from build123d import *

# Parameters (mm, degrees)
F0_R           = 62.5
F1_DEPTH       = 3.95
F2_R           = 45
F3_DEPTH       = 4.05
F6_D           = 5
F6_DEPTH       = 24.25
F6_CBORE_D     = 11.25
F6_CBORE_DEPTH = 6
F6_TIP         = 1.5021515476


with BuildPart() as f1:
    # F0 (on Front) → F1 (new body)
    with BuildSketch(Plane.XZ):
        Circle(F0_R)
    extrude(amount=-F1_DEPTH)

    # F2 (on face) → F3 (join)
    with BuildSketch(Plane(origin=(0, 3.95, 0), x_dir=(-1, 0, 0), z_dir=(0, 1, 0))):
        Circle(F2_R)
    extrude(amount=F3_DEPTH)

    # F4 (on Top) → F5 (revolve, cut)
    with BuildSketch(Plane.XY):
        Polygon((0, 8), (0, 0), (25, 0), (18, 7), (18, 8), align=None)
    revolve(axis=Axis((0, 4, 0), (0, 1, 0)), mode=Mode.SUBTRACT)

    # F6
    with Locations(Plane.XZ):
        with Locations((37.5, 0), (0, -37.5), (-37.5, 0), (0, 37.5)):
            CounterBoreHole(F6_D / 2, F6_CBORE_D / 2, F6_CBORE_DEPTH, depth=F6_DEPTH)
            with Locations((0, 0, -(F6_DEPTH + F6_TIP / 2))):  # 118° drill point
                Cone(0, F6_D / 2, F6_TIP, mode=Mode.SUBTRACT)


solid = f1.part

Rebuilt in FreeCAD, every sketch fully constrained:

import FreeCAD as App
import Part
import Sketcher
from FreeCAD import Vector
Q = App.Units.Quantity

doc = App.newDocument("Part")
body = doc.addObject("PartDesign::Body", "Body")

sketch1 = body.newObject("Sketcher::SketchObject", "Sketch")
sketch1.AttachmentSupport = (doc.getObject("XZ_Plane"), [""])
sketch1.MapMode = "FlatFace"
sketch1.addGeometry(Part.Circle(Vector(0, 0, 0), Vector(0, 0, 1), 62.5), False)
sketch1.addConstraint([
    Sketcher.Constraint("Coincident", 0, 3, -1, 1),
    Sketcher.Constraint("Diameter", 0, Q("125 mm")),
])
pad1 = body.newObject("PartDesign::Pad", "Pad")
pad1.Profile = sketch1
pad1.Length = 3.95
pad1.Reversed = True

sketch2 = body.newObject("Sketcher::SketchObject", "Sketch001")
sketch2.AttachmentSupport = (doc.getObject("XZ_Plane"), [""])
sketch2.MapMode = "FlatFace"
sketch2.AttachmentOffset = App.Placement(Vector(0, 0, -3.95), App.Rotation())
sketch2.addGeometry(Part.Circle(Vector(0, 0, 0), Vector(0, 0, 1), 45), False)
sketch2.addConstraint([
    Sketcher.Constraint("Coincident", 0, 3, -1, 1),
    Sketcher.Constraint("Diameter", 0, Q("90 mm")),
])
pad2 = body.newObject("PartDesign::Pad", "Pad001")
pad2.Profile = sketch2
pad2.Length = 4.05
pad2.Reversed = True

sketch3 = body.newObject("Sketcher::SketchObject", "Sketch002")
sketch3.AttachmentSupport = (doc.getObject("XY_Plane"), [""])
sketch3.MapMode = "FlatFace"
sketch3.addGeometry([
    Part.LineSegment(Vector(0, 8, 0), Vector(0, 0, 0)),
    Part.LineSegment(Vector(0, 0, 0), Vector(25, 0, 0)),
    Part.LineSegment(Vector(25, 0, 0), Vector(18, 7, 0)),
    Part.LineSegment(Vector(18, 7, 0), Vector(18, 8, 0)),
    Part.LineSegment(Vector(18, 8, 0), Vector(0, 8, 0)),
], False)
sketch3.addConstraint([
    Sketcher.Constraint("Coincident", 0, 2, 1, 1),
    Sketcher.Constraint("Coincident", 1, 2, 2, 1),
    Sketcher.Constraint("Coincident", 2, 2, 3, 1),
    Sketcher.Constraint("Coincident", 3, 2, 4, 1),
    Sketcher.Constraint("Coincident", 4, 2, 0, 1),
    Sketcher.Constraint("Vertical", 0),
    Sketcher.Constraint("Horizontal", 1),
    Sketcher.Constraint("Vertical", 3),
    Sketcher.Constraint("Horizontal", 4),
    Sketcher.Constraint("Coincident", 0, 2, -1, 1),
    Sketcher.Constraint("DistanceX", 1, 1, 1, 2, Q("25 mm")),
    Sketcher.Constraint("DistanceX", 4, 2, 4, 1, Q("18 mm")),
    Sketcher.Constraint("DistanceY", 0, 2, 0, 1, Q("8 mm")),
    Sketcher.Constraint("DistanceY", 3, 1, 3, 2, Q("1 mm")),
])
groove = body.newObject("PartDesign::Groove", "Groove")
groove.Profile = sketch3
groove.ReferenceAxis = (sketch3, ["V_Axis"])
groove.Angle = 360

sketch4 = body.newObject("Sketcher::SketchObject", "Sketch003")
sketch4.AttachmentSupport = (doc.getObject("XZ_Plane"), [""])
sketch4.MapMode = "FlatFace"
sketch4.addGeometry([
    Part.Circle(Vector(37.5, 0, 0), Vector(0, 0, 1), 2.5),
    Part.Circle(Vector(0, -37.5, 0), Vector(0, 0, 1), 2.5),
    Part.Circle(Vector(-37.5, 0, 0), Vector(0, 0, 1), 2.5),
    Part.Circle(Vector(0, 37.5, 0), Vector(0, 0, 1), 2.5),
], False)
sketch4.addConstraint([
    Sketcher.Constraint("Equal", 0, 1),
    Sketcher.Constraint("Equal", 1, 2),
    Sketcher.Constraint("Equal", 2, 3),
    Sketcher.Constraint("Symmetric", 0, 3, 2, 3, -1, 1),
    Sketcher.Constraint("Symmetric", 1, 3, 3, 3, -1, 1),
    Sketcher.Constraint("PointOnObject", 0, 3, -1),
    Sketcher.Constraint("PointOnObject", 1, 3, -2),
    Sketcher.Constraint("Diameter", 0, Q("5 mm")),
    Sketcher.Constraint("DistanceX", 2, 3, 0, 3, Q("75 mm")),
    Sketcher.Constraint("DistanceY", 1, 3, 3, 3, Q("75 mm")),
])
doc.recompute()
hole = body.newObject("PartDesign::Hole", "Hole")
hole.Profile = sketch4
hole.ThreadType = "None"
hole.Diameter = 5
hole.DepthType = "Dimension"
hole.Depth = 24.25
hole.DrillPoint = "Angled"
hole.DrillPointAngle = 118
hole.HoleCutType = "Counterbore"
hole.HoleCutDiameter = 11.25
hole.HoleCutDepth = 6

doc.recompute()
